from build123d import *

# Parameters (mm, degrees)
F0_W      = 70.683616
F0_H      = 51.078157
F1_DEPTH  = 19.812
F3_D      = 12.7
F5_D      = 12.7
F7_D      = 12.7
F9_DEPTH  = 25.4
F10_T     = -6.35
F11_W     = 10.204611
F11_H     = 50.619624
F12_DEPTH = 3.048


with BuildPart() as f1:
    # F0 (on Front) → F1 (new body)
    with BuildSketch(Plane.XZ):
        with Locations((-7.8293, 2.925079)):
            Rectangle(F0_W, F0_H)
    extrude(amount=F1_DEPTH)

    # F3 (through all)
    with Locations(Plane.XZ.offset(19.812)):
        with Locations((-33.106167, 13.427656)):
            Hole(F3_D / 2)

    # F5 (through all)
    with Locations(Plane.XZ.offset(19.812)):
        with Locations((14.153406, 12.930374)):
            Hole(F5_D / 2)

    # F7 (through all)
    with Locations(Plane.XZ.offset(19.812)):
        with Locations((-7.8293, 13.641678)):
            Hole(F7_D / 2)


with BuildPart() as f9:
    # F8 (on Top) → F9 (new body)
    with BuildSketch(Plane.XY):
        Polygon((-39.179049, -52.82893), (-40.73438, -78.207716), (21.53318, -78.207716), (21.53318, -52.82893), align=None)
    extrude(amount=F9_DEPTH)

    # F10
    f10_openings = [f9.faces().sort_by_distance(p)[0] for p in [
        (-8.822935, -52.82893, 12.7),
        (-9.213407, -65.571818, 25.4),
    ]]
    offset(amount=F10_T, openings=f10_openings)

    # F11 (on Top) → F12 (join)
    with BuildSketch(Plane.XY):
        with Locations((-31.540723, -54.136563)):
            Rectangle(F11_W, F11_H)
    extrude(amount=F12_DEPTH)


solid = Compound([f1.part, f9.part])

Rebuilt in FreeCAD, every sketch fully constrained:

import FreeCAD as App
import Part
import Sketcher
Q = App.Units.Quantity


def faces_at(feature, points):
    """Names of the faces that lie closest to the given points."""
    faces = feature.Shape.Faces
    near = lambda p: min(range(len(faces)), key=lambda i: faces[i].distToShape(Part.Vertex(*p))[0])
    return sorted({f"Face{near(p) + 1}" for p in points})

doc = App.newDocument("Part")
body = doc.addObject("PartDesign::Body", "Body")

# Sketch on XZ plane
sketch1 = doc.addObject("Sketcher::SketchObject", "Sketch")
body.addObject(sketch1)
sketch1.AttachmentSupport = (doc.XZ_Plane, [""])
sketch1.MapMode = "FlatFace"
sketch1.addGeometry([
    Part.LineSegment(App.Vector(-43.171108, 28.464157, 0), App.Vector(-43.171108, -22.613999, 0)),
    Part.LineSegment(App.Vector(-43.171108, -22.613999, 0), App.Vector(27.512508, -22.613999, 0)),
    Part.LineSegment(App.Vector(27.512508, -22.613999, 0), App.Vector(27.512508, 28.464157, 0)),
    Part.LineSegment(App.Vector(27.512508, 28.464157, 0), App.Vector(-43.171108, 28.464157, 0)),
], False)
sketch1.addConstraint([
    Sketcher.Constraint("Coincident", 0, 2, 1, 1),
    Sketcher.Constraint("Coincident", 1, 2, 2, 1),
    Sketcher.Constraint("Coincident", 2, 2, 3, 1),
    Sketcher.Constraint("Coincident", 3, 2, 0, 1),
    Sketcher.Constraint("Vertical", 0),
    Sketcher.Constraint("Horizontal", 1),
    Sketcher.Constraint("Vertical", 2),
    Sketcher.Constraint("Horizontal", 3),
    Sketcher.Constraint("DistanceY", 0, 2, -1, 1, 22.613999),
    Sketcher.Constraint("DistanceX", 1, 1, 1, 2, 70.683616),
    Sketcher.Constraint("DistanceY", 0, 2, 0, 1, 51.078157),
    Sketcher.Constraint("DistanceX", -1, 1, 1, 2, 27.512508),
])
pad1 = doc.addObject("PartDesign::Pad", "Pad")
body.addObject(pad1)
pad1.Profile = sketch1
pad1.Length = Q("0.78 in")

# Sketch on XZ plane
sketch2 = doc.addObject("Sketcher::SketchObject", "Sketch001")
body.addObject(sketch2)
sketch2.AttachmentSupport = (doc.XZ_Plane, [""])
sketch2.MapMode = "FlatFace"
sketch2.AttachmentOffset = App.Placement(App.Vector(0, 0, 0.78 * 25.4), App.Rotation())
sketch2.addGeometry(Part.Circle(App.Vector(-33.106167, 13.427656, 0), App.Vector(0, 0, 1), 6.35), False)
sketch2.addConstraint([
    Sketcher.Constraint("Diameter", 0, Q("0.5 in")),
    Sketcher.Constraint("DistanceX", 0, 3, -1, 1, 33.106167),
    Sketcher.Constraint("DistanceY", -1, 1, 0, 3, 13.427656),
])
doc.recompute()
hole = doc.addObject("PartDesign::Hole", "Hole")
body.addObject(hole)
hole.Profile = sketch2
hole.ThreadType = "None"
hole.Diameter = Q("0.5 in")
hole.DepthType = "ThroughAll"

# Sketch on XZ plane
sketch3 = doc.addObject("Sketcher::SketchObject", "Sketch002")
body.addObject(sketch3)
sketch3.AttachmentSupport = (doc.XZ_Plane, [""])
sketch3.MapMode = "FlatFace"
sketch3.AttachmentOffset = App.Placement(App.Vector(0, 0, 0.78 * 25.4), App.Rotation())
sketch3.addGeometry(Part.Circle(App.Vector(14.153406, 12.930374, 0), App.Vector(0, 0, 1), 6.35), False)
sketch3.addConstraint([
    Sketcher.Constraint("Diameter", 0, Q("0.5 in")),
    Sketcher.Constraint("DistanceX", -1, 1, 0, 3, 14.153406),
    Sketcher.Constraint("DistanceY", -1, 1, 0, 3, 12.930374),
])
doc.recompute()
hole2 = doc.addObject("PartDesign::Hole", "Hole001")
body.addObject(hole2)
hole2.Profile = sketch3
hole2.ThreadType = "None"
hole2.Diameter = Q("0.5 in")
hole2.DepthType = "ThroughAll"

# Sketch on XZ plane
sketch4 = doc.addObject("Sketcher::SketchObject", "Sketch003")
body.addObject(sketch4)
sketch4.AttachmentSupport = (doc.XZ_Plane, [""])
sketch4.MapMode = "FlatFace"
sketch4.AttachmentOffset = App.Placement(App.Vector(0, 0, 0.78 * 25.4), App.Rotation())
sketch4.addGeometry(Part.Circle(App.Vector(-7.8293, 13.641678, 0), App.Vector(0, 0, 1), 6.35), False)
sketch4.addConstraint([
    Sketcher.Constraint("Diameter", 0, Q("0.5 in")),
    Sketcher.Constraint("DistanceX", 0, 3, -1, 1, 7.8293),
    Sketcher.Constraint("DistanceY", -1, 1, 0, 3, 13.641678),
])
doc.recompute()
hole3 = doc.addObject("PartDesign::Hole", "Hole002")
body.addObject(hole3)
hole3.Profile = sketch4
hole3.ThreadType = "None"
hole3.Diameter = Q("0.5 in")
hole3.DepthType = "ThroughAll"
body2 = doc.addObject("PartDesign::Body", "Body001")

# Sketch on XY plane
sketch5 = doc.addObject("Sketcher::SketchObject", "Sketch004")
body2.addObject(sketch5)
sketch5.AttachmentSupport = (doc.getObject("XY_Plane001"), [""])
sketch5.MapMode = "FlatFace"
sketch5.addGeometry([
    Part.LineSegment(App.Vector(-39.179049, -52.82893, 0), App.Vector(-40.73438, -78.207716, 0)),
    Part.LineSegment(App.Vector(-40.73438, -78.207716, 0), App.Vector(21.53318, -78.207716, 0)),
    Part.LineSegment(App.Vector(21.53318, -78.207716, 0), App.Vector(21.53318, -52.82893, 0)),
    Part.LineSegment(App.Vector(21.53318, -52.82893, 0), App.Vector(-39.179049, -52.82893, 0)),
], False)
sketch5.addConstraint([
    Sketcher.Constraint("Coincident", 0, 2, 1, 1),
    Sketcher.Constraint("Coincident", 1, 2, 2, 1),
    Sketcher.Constraint("Coincident", 2, 2, 3, 1),
    Sketcher.Constraint("Coincident", 3, 2, 0, 1),
    Sketcher.Constraint("Horizontal", 1),
    Sketcher.Constraint("Vertical", 2),
    Sketcher.Constraint("Horizontal", 3),
    Sketcher.Constraint("Distance", 0, 25.4264),
    Sketcher.Constraint("DistanceX", 1, 1, 1, 2, 62.26756),
    Sketcher.Constraint("DistanceX", 3, 2, 3, 1, 60.712229),
    Sketcher.Constraint("DistanceX", 0, 2, -1, 1, 40.73438),
    Sketcher.Constraint("DistanceY", 2, 2, -1, 1, 52.82893),
])
pad2 = doc.addObject("PartDesign::Pad", "Pad001")
body2.addObject(pad2)
pad2.Profile = sketch5
pad2.Length = Q("1 in")
doc.recompute()

thickness = doc.addObject("PartDesign::Thickness", "Thickness")
body2.addObject(thickness)
thickness.Base = (pad2, faces_at(pad2, [(-8.823, -52.829, 12.7), (-9.601, -65.518, 25.4)]))
thickness.Value = Q("0.25 in")
thickness.Reversed = True
thickness.Join = "Arc"

# Sketch on XY plane
sketch6 = doc.addObject("Sketcher::SketchObject", "Sketch005")
body2.addObject(sketch6)
sketch6.AttachmentSupport = (doc.getObject("XY_Plane001"), [""])
sketch6.MapMode = "FlatFace"
sketch6.addGeometry([
    Part.LineSegment(App.Vector(-36.643028, -28.826751, 0), App.Vector(-36.643028, -79.446375, 0)),
    Part.LineSegment(App.Vector(-36.643028, -79.446375, 0), App.Vector(-26.438417, -79.446375, 0)),
    Part.LineSegment(App.Vector(-26.438417, -79.446375, 0), App.Vector(-26.438417, -28.826751, 0)),
    Part.LineSegment(App.Vector(-26.438417, -28.826751, 0), App.Vector(-36.643028, -28.826751, 0)),
], False)
sketch6.addConstraint([
    Sketcher.Constraint("Coincident", 0, 2, 1, 1),
    Sketcher.Constraint("Coincident", 1, 2, 2, 1),
    Sketcher.Constraint("Coincident", 2, 2, 3, 1),
    Sketcher.Constraint("Coincident", 3, 2, 0, 1),
    Sketcher.Constraint("Vertical", 0),
    Sketcher.Constraint("Horizontal", 1),
    Sketcher.Constraint("Vertical", 2),
    Sketcher.Constraint("Horizontal", 3),
    Sketcher.Constraint("DistanceX", 1, 1, 1, 2, 10.204611),
    Sketcher.Constraint("DistanceY", 0, 2, 0, 1, 50.619624),
    Sketcher.Constraint("DistanceX", 0, 2, -1, 1, 36.643028),
    Sketcher.Constraint("DistanceY", 2, 2, -1, 1, 28.826751),
])
pad3 = doc.addObject("PartDesign::Pad", "Pad002")
body2.addObject(pad3)
pad3.Profile = sketch6
pad3.Length = Q("0.12 in")

doc.recompute()
